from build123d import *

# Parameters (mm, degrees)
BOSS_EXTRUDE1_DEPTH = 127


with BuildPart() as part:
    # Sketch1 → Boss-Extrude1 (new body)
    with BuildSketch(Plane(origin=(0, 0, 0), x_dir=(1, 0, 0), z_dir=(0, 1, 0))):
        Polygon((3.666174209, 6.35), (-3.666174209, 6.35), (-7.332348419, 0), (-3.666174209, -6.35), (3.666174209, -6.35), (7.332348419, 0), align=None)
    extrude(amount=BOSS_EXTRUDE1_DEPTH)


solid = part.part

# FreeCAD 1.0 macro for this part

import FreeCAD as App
import Part
import Sketcher

V = App.Vector
Q = App.Units.Quantity

doc = App.newDocument("Part")
body = doc.addObject("PartDesign::Body", "Body")

# Sketch on XZ plane
sketch1 = body.newObject("Sketcher::SketchObject", "Sketch")
sketch1.AttachmentSupport = (doc.getObject("XZ_Plane"), [""])
sketch1.MapMode = "FlatFace"
sketch1.addGeometry(Part.LineSegment(V(3.666174, -6.35, 0), V(-3.666174, -6.35, 0)), False)
sketch1.addGeometry(Part.LineSegment(V(-3.666174, -6.35, 0), V(-7.332348, 0, 0)), False)
sketch1.addGeometry(Part.LineSegment(V(-7.332348, 0, 0), V(-3.666174, 6.35, 0)), False)
sketch1.addGeometry(Part.LineSegment(V(-3.666174, 6.35, 0), V(3.666174, 6.35, 0)), False)
sketch1.addGeometry(Part.LineSegment(V(3.666174, 6.35, 0), V(7.332348, 0, 0)), False)
sketch1.addGeometry(Part.LineSegment(V(7.332348, 0, 0), V(3.666174, -6.35, 0)), False)
sketch1.addConstraint(Sketcher.Constraint("Coincident", 0, 2, 1, 1))
sketch1.addConstraint(Sketcher.Constraint("Coincident", 1, 2, 2, 1))
sketch1.addConstraint(Sketcher.Constraint("Coincident", 2, 2, 3, 1))
sketch1.addConstraint(Sketcher.Constraint("Coincident", 3, 2, 4, 1))
sketch1.addConstraint(Sketcher.Constraint("Coincident", 4, 2, 5, 1))
sketch1.addConstraint(Sketcher.Constraint("Coincident", 5, 2, 0, 1))
sketch1.addConstraint(Sketcher.Constraint("Horizontal", 0))
sketch1.addConstraint(Sketcher.Constraint("Horizontal", 3))
sketch1.addConstraint(Sketcher.Constraint("Symmetric", 0, 2, 3, 2, -1, 1))
sketch1.addConstraint(Sketcher.Constraint("Symmetric", 1, 2, 4, 2, -1, 1))
sketch1.addConstraint(Sketcher.Constraint("PointOnObject", 1, 2, -1))
sketch1.addConstraint(Sketcher.Constraint("Parallel", 2, 5))
sketch1.addConstraint(Sketcher.Constraint("Vertical", 0, 2, 2, 2))
sketch1.addConstraint(Sketcher.Constraint("Angle", 1, Q("120 deg")))
sketch1.addConstraint(Sketcher.Constraint("DistanceY", 0, 2, 2, 2, Q("0.5 in")))
sketch1.addConstraint(Sketcher.Constraint("DistanceX", 0, 2, 0, 1, Q("7.332348 mm")))
pad1 = body.newObject("PartDesign::Pad", "Pad")
pad1.Profile = sketch1
pad1.Length = Q("5 in")
pad1.Reversed = True

doc.recompute()
